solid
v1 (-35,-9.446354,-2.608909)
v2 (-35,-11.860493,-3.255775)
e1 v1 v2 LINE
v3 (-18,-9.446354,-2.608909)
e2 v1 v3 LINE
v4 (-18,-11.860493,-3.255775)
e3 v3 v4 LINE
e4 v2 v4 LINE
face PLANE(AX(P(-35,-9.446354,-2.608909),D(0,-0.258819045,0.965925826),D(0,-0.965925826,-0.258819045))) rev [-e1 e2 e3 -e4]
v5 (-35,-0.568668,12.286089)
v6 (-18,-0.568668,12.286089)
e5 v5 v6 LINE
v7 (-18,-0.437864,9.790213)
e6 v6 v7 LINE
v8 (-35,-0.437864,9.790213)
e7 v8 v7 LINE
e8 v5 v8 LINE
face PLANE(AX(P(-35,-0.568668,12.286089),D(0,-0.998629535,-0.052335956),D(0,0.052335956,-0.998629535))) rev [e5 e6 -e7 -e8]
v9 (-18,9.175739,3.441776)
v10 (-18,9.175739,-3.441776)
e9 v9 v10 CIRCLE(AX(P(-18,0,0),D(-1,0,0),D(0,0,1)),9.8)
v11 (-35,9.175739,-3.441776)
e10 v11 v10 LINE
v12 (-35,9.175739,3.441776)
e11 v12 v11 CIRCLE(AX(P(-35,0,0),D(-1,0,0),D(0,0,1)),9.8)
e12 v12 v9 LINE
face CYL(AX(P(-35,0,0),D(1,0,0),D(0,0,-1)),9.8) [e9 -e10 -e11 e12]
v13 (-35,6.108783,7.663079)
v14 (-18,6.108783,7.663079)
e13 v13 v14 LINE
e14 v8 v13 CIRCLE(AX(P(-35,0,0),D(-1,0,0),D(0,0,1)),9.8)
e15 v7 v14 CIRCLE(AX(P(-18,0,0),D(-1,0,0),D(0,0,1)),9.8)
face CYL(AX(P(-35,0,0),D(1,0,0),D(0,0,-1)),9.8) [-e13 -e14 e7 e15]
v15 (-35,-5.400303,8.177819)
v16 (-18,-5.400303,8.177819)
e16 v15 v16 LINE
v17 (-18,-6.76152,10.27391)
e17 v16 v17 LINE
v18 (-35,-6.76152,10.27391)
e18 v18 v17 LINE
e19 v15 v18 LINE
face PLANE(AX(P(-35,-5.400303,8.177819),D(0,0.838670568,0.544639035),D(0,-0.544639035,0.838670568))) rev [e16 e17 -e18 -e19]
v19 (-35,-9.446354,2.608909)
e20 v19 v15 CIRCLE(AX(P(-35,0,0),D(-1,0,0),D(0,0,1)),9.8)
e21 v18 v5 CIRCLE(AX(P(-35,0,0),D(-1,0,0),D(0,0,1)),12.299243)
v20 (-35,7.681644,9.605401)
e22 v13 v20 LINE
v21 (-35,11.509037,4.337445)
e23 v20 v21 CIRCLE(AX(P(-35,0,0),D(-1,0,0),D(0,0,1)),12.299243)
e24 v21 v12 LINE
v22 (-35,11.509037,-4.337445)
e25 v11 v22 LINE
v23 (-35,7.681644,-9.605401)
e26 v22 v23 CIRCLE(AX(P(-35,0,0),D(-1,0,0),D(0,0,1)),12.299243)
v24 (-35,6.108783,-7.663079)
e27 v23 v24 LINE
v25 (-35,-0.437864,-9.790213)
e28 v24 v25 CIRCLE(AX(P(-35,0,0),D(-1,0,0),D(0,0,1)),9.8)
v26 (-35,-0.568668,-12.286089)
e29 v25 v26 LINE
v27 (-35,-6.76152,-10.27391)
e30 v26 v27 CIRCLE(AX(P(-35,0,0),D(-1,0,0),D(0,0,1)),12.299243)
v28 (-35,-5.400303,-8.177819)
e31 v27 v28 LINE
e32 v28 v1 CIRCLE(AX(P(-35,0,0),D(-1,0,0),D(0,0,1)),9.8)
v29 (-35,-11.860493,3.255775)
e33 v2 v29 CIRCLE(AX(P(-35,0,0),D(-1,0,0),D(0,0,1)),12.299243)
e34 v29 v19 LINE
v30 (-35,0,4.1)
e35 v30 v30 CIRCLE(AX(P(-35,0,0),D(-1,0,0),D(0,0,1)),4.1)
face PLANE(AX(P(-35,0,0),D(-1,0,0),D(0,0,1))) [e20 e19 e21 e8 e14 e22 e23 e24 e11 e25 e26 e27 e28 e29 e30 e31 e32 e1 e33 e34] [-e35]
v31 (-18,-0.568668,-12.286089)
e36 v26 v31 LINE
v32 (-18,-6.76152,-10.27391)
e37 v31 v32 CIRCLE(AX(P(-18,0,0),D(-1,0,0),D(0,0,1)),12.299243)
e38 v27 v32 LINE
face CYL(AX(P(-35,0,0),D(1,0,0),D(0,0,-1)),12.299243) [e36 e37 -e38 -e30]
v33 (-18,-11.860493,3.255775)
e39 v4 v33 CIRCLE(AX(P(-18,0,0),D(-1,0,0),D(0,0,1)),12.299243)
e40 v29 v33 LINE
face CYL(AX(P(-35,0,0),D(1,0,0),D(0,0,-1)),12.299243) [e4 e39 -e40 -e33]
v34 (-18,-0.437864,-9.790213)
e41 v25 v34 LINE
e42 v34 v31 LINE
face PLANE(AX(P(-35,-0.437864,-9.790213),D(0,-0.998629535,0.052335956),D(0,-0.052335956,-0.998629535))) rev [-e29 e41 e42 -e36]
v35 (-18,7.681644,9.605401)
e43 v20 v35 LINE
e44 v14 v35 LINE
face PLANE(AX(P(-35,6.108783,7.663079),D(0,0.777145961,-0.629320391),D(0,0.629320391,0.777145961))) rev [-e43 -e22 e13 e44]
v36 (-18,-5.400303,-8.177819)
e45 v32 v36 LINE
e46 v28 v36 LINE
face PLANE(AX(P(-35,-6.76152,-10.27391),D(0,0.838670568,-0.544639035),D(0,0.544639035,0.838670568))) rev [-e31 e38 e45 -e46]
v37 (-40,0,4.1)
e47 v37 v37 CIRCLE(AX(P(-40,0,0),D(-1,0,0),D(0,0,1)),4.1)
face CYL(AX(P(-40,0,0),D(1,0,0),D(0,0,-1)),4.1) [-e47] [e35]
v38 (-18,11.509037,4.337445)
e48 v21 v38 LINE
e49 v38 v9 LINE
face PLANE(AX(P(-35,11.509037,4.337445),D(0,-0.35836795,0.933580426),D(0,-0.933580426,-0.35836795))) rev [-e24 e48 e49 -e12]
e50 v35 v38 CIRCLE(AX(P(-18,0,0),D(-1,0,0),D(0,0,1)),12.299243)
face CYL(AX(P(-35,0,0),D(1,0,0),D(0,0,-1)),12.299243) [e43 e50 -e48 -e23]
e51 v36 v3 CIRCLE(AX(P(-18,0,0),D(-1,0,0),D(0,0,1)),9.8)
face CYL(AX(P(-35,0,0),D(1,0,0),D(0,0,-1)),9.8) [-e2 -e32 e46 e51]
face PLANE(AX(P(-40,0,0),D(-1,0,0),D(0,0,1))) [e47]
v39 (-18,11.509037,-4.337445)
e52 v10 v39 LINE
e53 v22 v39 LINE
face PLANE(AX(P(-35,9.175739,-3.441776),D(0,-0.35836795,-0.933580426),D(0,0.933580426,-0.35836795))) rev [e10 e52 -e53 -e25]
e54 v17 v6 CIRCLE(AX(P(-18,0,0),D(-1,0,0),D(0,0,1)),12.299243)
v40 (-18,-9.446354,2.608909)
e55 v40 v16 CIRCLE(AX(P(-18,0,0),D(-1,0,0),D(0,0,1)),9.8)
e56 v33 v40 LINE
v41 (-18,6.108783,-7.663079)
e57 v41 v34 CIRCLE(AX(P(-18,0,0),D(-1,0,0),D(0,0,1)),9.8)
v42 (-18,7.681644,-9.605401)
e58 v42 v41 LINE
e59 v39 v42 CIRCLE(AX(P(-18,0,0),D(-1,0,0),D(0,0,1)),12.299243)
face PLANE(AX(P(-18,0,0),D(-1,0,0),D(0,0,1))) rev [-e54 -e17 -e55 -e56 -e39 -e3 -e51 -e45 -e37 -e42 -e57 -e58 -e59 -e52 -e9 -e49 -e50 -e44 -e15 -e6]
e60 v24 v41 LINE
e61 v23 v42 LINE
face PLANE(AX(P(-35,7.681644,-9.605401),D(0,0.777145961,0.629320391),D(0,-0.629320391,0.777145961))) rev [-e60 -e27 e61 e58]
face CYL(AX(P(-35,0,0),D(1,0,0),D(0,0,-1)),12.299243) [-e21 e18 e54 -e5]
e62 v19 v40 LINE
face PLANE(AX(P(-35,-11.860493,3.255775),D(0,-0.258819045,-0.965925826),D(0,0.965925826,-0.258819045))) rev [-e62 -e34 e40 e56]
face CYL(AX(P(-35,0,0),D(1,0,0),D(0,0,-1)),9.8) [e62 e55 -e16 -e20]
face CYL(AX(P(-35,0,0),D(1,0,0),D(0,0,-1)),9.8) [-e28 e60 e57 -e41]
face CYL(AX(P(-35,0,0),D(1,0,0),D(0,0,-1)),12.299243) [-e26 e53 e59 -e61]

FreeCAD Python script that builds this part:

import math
import FreeCAD as App
import Part
import Sketcher
from FreeCAD import Vector
Q = App.Units.Quantity

doc = App.newDocument("Part")
body = doc.addObject("PartDesign::Body", "Body")

sketch1 = body.newObject("Sketcher::SketchObject", "Sketch")
sketch1.AttachmentSupport = (doc.getObject("YZ_Plane"), [""])
sketch1.MapMode = "FlatFace"
sketch1.AttachmentOffset = App.Placement(Vector(0, 0, -18), App.Rotation())
sketch1.addGeometry(Part.LineSegment(Vector(9.175739, -3.441776, 0), Vector(11.509037, -4.337445, 0)), False)
sketch1.addGeometry(Part.ArcOfCircle(Part.Circle(Vector(0, 0, 0), Vector(0, 0, 1), 12.299243), math.radians(-51.349928), math.radians(-20.650072)), False)
sketch1.addGeometry(Part.LineSegment(Vector(7.681644, -9.605401, 0), Vector(6.108783, -7.663079, 0)), False)
sketch1.addGeometry(Part.ArcOfCircle(Part.Circle(Vector(0, 0, 0), Vector(0, 0, 1), 9.8), math.radians(-92.56083), math.radians(-51.43917)), False)
sketch1.addGeometry(Part.LineSegment(Vector(-0.437864, -9.790213, 0), Vector(-0.568668, -12.286089, 0)), False)
sketch1.addGeometry(Part.ArcOfCircle(Part.Circle(Vector(0, 0, 0), Vector(0, 0, 1), 12.299243), math.radians(-123.349928), math.radians(-92.650072)), False)
sketch1.addGeometry(Part.LineSegment(Vector(-6.76152, -10.27391, 0), Vector(-5.400303, -8.177819, 0)), False)
sketch1.addGeometry(Part.ArcOfCircle(Part.Circle(Vector(0, 0, 0), Vector(0, 0, 1), 9.8), math.radians(-164.56083), math.radians(-123.43917)), False)
sketch1.addGeometry(Part.LineSegment(Vector(-9.446354, -2.608909, 0), Vector(-11.860493, -3.255775, 0)), False)
sketch1.addGeometry(Part.ArcOfCircle(Part.Circle(Vector(0, 0, 0), Vector(0, 0, 1), 12.299243), math.radians(164.650072), math.radians(195.349928)), False)
sketch1.addGeometry(Part.LineSegment(Vector(-11.860493, 3.255775, 0), Vector(-9.446354, 2.608909, 0)), False)
sketch1.addGeometry(Part.ArcOfCircle(Part.Circle(Vector(0, 0, 0), Vector(0, 0, 1), 9.8), math.radians(123.43917), math.radians(164.56083)), False)
sketch1.addGeometry(Part.LineSegment(Vector(-5.400303, 8.177819, 0), Vector(-6.76152, 10.27391, 0)), False)
sketch1.addGeometry(Part.ArcOfCircle(Part.Circle(Vector(0, 0, 0), Vector(0, 0, 1), 12.299243), math.radians(92.650072), math.radians(123.349928)), False)
sketch1.addGeometry(Part.LineSegment(Vector(-0.568668, 12.286089, 0), Vector(-0.437864, 9.790213, 0)), False)
sketch1.addGeometry(Part.ArcOfCircle(Part.Circle(Vector(0, 0, 0), Vector(0, 0, 1), 9.8), math.radians(51.43917), math.radians(92.56083)), False)
sketch1.addGeometry(Part.LineSegment(Vector(6.108783, 7.663079, 0), Vector(7.681644, 9.605401, 0)), False)
sketch1.addGeometry(Part.ArcOfCircle(Part.Circle(Vector(0, 0, 0), Vector(0, 0, 1), 12.299243), math.radians(20.650072), math.radians(51.349928)), False)
sketch1.addGeometry(Part.LineSegment(Vector(11.509037, 4.337445, 0), Vector(9.175739, 3.441776, 0)), False)
sketch1.addGeometry(Part.ArcOfCircle(Part.Circle(Vector(0, 0, 0), Vector(0, 0, 1), 9.8), math.radians(-20.56083), math.radians(20.56083)), False)
sketch1.addConstraint(Sketcher.Constraint("Coincident", 0, 2, 1, 2))
sketch1.addConstraint(Sketcher.Constraint("Coincident", 1, 1, 2, 1))
sketch1.addConstraint(Sketcher.Constraint("Coincident", 2, 2, 3, 2))
sketch1.addConstraint(Sketcher.Constraint("Coincident", 3, 1, 4, 1))
sketch1.addConstraint(Sketcher.Constraint("Coincident", 4, 2, 5, 2))
sketch1.addConstraint(Sketcher.Constraint("Coincident", 5, 1, 6, 1))
sketch1.addConstraint(Sketcher.Constraint("Coincident", 6, 2, 7, 2))
sketch1.addConstraint(Sketcher.Constraint("Coincident", 7, 1, 8, 1))
sketch1.addConstraint(Sketcher.Constraint("Coincident", 8, 2, 9, 2))
sketch1.addConstraint(Sketcher.Constraint("Coincident", 9, 1, 10, 1))
sketch1.addConstraint(Sketcher.Constraint("Coincident", 10, 2, 11, 2))
sketch1.addConstraint(Sketcher.Constraint("Coincident", 11, 1, 12, 1))
sketch1.addConstraint(Sketcher.Constraint("Coincident", 12, 2, 13, 2))
sketch1.addConstraint(Sketcher.Constraint("Coincident", 13, 1, 14, 1))
sketch1.addConstraint(Sketcher.Constraint("Coincident", 14, 2, 15, 2))
sketch1.addConstraint(Sketcher.Constraint("Coincident", 15, 1, 16, 1))
sketch1.addConstraint(Sketcher.Constraint("Coincident", 16, 2, 17, 2))
sketch1.addConstraint(Sketcher.Constraint("Coincident", 17, 1, 18, 1))
sketch1.addConstraint(Sketcher.Constraint("Coincident", 18, 2, 19, 2))
sketch1.addConstraint(Sketcher.Constraint("Coincident", 19, 1, 0, 1))
sketch1.addConstraint(Sketcher.Constraint("Coincident", 1, 3, -1, 1))
sketch1.addConstraint(Sketcher.Constraint("Coincident", 3, 3, -1, 1))
sketch1.addConstraint(Sketcher.Constraint("Coincident", 5, 3, -1, 1))
sketch1.addConstraint(Sketcher.Constraint("Coincident", 7, 3, -1, 1))
sketch1.addConstraint(Sketcher.Constraint("Coincident", 9, 3, -1, 1))
sketch1.addConstraint(Sketcher.Constraint("Coincident", 11, 3, -1, 1))
sketch1.addConstraint(Sketcher.Constraint("Coincident", 13, 3, -1, 1))
sketch1.addConstraint(Sketcher.Constraint("Coincident", 15, 3, -1, 1))
sketch1.addConstraint(Sketcher.Constraint("Coincident", 17, 3, -1, 1))
sketch1.addConstraint(Sketcher.Constraint("Coincident", 19, 3, -1, 1))
sketch1.addConstraint(Sketcher.Constraint("Equal", 1, 5))
sketch1.addConstraint(Sketcher.Constraint("Equal", 3, 7))
sketch1.addConstraint(Sketcher.Constraint("Equal", 5, 9))
sketch1.addConstraint(Sketcher.Constraint("Equal", 7, 11))
sketch1.addConstraint(Sketcher.Constraint("Equal", 9, 13))
sketch1.addConstraint(Sketcher.Constraint("Equal", 11, 15))
sketch1.addConstraint(Sketcher.Constraint("Equal", 13, 17))
sketch1.addConstraint(Sketcher.Constraint("Equal", 15, 19))
sketch1.addConstraint(Sketcher.Constraint("Vertical", 8, 2, 9, 1))
sketch1.addConstraint(Sketcher.Constraint("Vertical", 7, 1, 10, 2))
sketch1.addConstraint(Sketcher.Constraint("Vertical", 6, 2, 11, 1))
sketch1.addConstraint(Sketcher.Constraint("Vertical", 5, 1, 12, 2))
sketch1.addConstraint(Sketcher.Constraint("Vertical", 4, 2, 13, 1))
sketch1.addConstraint(Sketcher.Constraint("Vertical", 3, 1, 14, 2))
sketch1.addConstraint(Sketcher.Constraint("Vertical", 2, 2, 15, 1))
sketch1.addConstraint(Sketcher.Constraint("Vertical", 1, 1, 16, 2))
sketch1.addConstraint(Sketcher.Constraint("Vertical", 0, 2, 17, 1))
sketch1.addConstraint(Sketcher.Constraint("Vertical", 18, 2, 19, 1))
sketch1.addConstraint(Sketcher.Constraint("Equal", 0, 2))
sketch1.addConstraint(Sketcher.Constraint("Equal", 2, 4))
sketch1.addConstraint(Sketcher.Constraint("Equal", 4, 6))
sketch1.addConstraint(Sketcher.Constraint("Equal", 6, 8))
sketch1.addConstraint(Sketcher.Constraint("Radius", 3, 9.8))
sketch1.addConstraint(Sketcher.Constraint("Angle", 0, Q("-21 deg")))
sketch1.addConstraint(Sketcher.Constraint("Angle", 2, Q("129 deg")))
sketch1.addConstraint(Sketcher.Constraint("Angle", 4, Q("-93 deg")))
sketch1.addConstraint(Sketcher.Constraint("Angle", 6, Q("57 deg")))
sketch1.addConstraint(Sketcher.Constraint("Angle", 8, Q("-165 deg")))
sketch1.addConstraint(Sketcher.Constraint("Radius", 1, 12.299243))
sketch1.addConstraint(Sketcher.Constraint("DistanceY", 5, 1, 7, 1, 7.665001))
pad1 = body.newObject("PartDesign::Pad", "Pad")
pad1.Profile = sketch1
pad1.Length = 17
pad1.Reversed = True

sketch2 = body.newObject("Sketcher::SketchObject", "Sketch001")
sketch2.AttachmentSupport = (doc.getObject("YZ_Plane"), [""])
sketch2.MapMode = "FlatFace"
sketch2.AttachmentOffset = App.Placement(Vector(0, 0, -35), App.Rotation())
sketch2.addGeometry(Part.Circle(Vector(0, 0, 0), Vector(0, 0, 1), 4.1), False)
sketch2.addConstraint(Sketcher.Constraint("Coincident", 0, 3, -1, 1))
sketch2.addConstraint(Sketcher.Constraint("Diameter", 0, 8.2))
pad2 = body.newObject("PartDesign::Pad", "Pad001")
pad2.Profile = sketch2
pad2.Length = 5
pad2.Reversed = True

doc.recompute()
